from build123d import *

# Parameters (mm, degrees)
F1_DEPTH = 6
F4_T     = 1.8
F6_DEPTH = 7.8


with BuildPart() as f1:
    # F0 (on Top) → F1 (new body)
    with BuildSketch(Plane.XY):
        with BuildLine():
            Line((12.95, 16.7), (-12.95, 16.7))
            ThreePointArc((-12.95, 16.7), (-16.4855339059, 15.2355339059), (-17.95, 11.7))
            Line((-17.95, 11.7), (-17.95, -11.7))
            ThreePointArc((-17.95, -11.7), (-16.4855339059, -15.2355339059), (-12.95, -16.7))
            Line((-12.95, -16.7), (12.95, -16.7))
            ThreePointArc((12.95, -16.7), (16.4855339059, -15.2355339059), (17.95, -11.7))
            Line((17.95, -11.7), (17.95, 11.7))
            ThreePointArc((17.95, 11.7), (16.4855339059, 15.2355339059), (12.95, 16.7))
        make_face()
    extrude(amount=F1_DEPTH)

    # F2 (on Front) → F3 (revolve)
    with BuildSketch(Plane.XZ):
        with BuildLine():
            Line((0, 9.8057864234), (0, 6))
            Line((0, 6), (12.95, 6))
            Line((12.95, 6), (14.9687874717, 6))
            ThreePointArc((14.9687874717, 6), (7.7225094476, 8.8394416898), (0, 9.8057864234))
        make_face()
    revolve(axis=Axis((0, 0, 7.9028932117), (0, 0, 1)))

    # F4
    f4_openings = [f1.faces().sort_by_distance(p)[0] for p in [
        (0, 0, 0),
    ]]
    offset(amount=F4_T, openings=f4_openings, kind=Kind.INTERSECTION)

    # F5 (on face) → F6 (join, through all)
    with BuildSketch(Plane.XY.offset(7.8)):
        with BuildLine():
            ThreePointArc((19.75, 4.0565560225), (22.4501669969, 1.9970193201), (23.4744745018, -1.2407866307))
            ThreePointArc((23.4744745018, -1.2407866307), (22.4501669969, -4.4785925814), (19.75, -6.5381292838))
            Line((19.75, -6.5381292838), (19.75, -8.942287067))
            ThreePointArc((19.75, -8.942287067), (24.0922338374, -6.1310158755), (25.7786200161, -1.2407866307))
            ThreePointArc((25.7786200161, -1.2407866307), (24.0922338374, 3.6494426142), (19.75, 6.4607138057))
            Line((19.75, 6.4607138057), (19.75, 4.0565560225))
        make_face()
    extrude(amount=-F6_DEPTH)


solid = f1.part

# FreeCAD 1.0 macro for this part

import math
import FreeCAD as App
import Part
import Sketcher
from FreeCAD import Vector


def faces_at(feature, points):
    """Names of the faces that lie closest to the given points."""
    faces = feature.Shape.Faces
    near = lambda p: min(range(len(faces)), key=lambda i: faces[i].distToShape(Part.Vertex(*p))[0])
    return sorted({f"Face{near(p) + 1}" for p in points})

doc = App.newDocument("Part")
body = doc.addObject("PartDesign::Body", "Body")

sketch1 = body.newObject("Sketcher::SketchObject", "Sketch")
sketch1.AttachmentSupport = (doc.getObject("XY_Plane"), [""])
sketch1.MapMode = "FlatFace"
sketch1.addGeometry(Part.LineSegment(Vector(13, 17, 0), Vector(-13, 17, 0)), False)
sketch1.addGeometry(Part.ArcOfCircle(Part.Circle(Vector(-13, 12, 0), Vector(0, 0, 1), 5), math.radians(90), math.radians(180)), False)
sketch1.addGeometry(Part.LineSegment(Vector(-18, 12, 0), Vector(-18, -12, 0)), False)
sketch1.addGeometry(Part.ArcOfCircle(Part.Circle(Vector(-13, -12, 0), Vector(0, 0, 1), 5), math.radians(180), math.radians(270)), False)
sketch1.addGeometry(Part.LineSegment(Vector(-13, -17, 0), Vector(13, -17, 0)), False)
sketch1.addGeometry(Part.ArcOfCircle(Part.Circle(Vector(13, -12, 0), Vector(0, 0, 1), 5), math.radians(-90), math.radians(0)), False)
sketch1.addGeometry(Part.LineSegment(Vector(18, -12, 0), Vector(18, 12, 0)), False)
sketch1.addGeometry(Part.ArcOfCircle(Part.Circle(Vector(13, 12, 0), Vector(0, 0, 1), 5), math.radians(0), math.radians(90)), False)
sketch1.addConstraint(Sketcher.Constraint("Tangent", 0, 2, 1, 1))
sketch1.addConstraint(Sketcher.Constraint("Tangent", 1, 2, 2, 1))
sketch1.addConstraint(Sketcher.Constraint("Tangent", 2, 2, 3, 1))
sketch1.addConstraint(Sketcher.Constraint("Tangent", 3, 2, 4, 1))
sketch1.addConstraint(Sketcher.Constraint("Tangent", 4, 2, 5, 1))
sketch1.addConstraint(Sketcher.Constraint("Tangent", 5, 2, 6, 1))
sketch1.addConstraint(Sketcher.Constraint("Tangent", 6, 2, 7, 1))
sketch1.addConstraint(Sketcher.Constraint("Tangent", 7, 2, 0, 1))
sketch1.addConstraint(Sketcher.Constraint("Horizontal", 0))
sketch1.addConstraint(Sketcher.Constraint("Vertical", 2))
sketch1.addConstraint(Sketcher.Constraint("Horizontal", 4))
sketch1.addConstraint(Sketcher.Constraint("Vertical", 6))
sketch1.addConstraint(Sketcher.Constraint("Equal", 1, 3))
sketch1.addConstraint(Sketcher.Constraint("Equal", 3, 5))
sketch1.addConstraint(Sketcher.Constraint("Equal", 5, 7))
sketch1.addConstraint(Sketcher.Constraint("Symmetric", 1, 3, 5, 3, -1, 1))
sketch1.addConstraint(Sketcher.Constraint("Radius", 1, 5.0))
sketch1.addConstraint(Sketcher.Constraint("DistanceX", 0, 2, 0, 1, 25.9))
sketch1.addConstraint(Sketcher.Constraint("DistanceY", 2, 2, 2, 1, 23.4))
pad1 = body.newObject("PartDesign::Pad", "Pad")
pad1.Profile = sketch1
pad1.Length = 6

sketch2 = body.newObject("Sketcher::SketchObject", "Sketch001")
sketch2.AttachmentSupport = (doc.getObject("XZ_Plane"), [""])
sketch2.MapMode = "FlatFace"
sketch2.addGeometry(Part.LineSegment(Vector(0, 9.8, 0), Vector(0, 6, 0)), False)
sketch2.addGeometry(Part.LineSegment(Vector(0, 6, 0), Vector(15, 6, 0)), False)
sketch2.addGeometry(Part.ArcOfCircle(Part.Circle(Vector(0, -21.5, 0), Vector(0, 0, 1), 31.3), math.radians(61), math.radians(90)), False)
sketch2.addConstraint(Sketcher.Constraint("Coincident", 0, 2, 1, 1))
sketch2.addConstraint(Sketcher.Constraint("Coincident", 1, 2, 2, 1))
sketch2.addConstraint(Sketcher.Constraint("Coincident", 2, 2, 0, 1))
sketch2.addConstraint(Sketcher.Constraint("Vertical", 0))
sketch2.addConstraint(Sketcher.Constraint("Horizontal", 1))
sketch2.addConstraint(Sketcher.Constraint("PointOnObject", 2, 3, -2))
sketch2.addConstraint(Sketcher.Constraint("PointOnObject", 0, 2, -2))
sketch2.addConstraint(Sketcher.Constraint("DistanceY", -1, 1, 0, 2, 6.0))
sketch2.addConstraint(Sketcher.Constraint("Radius", 2, 31.340252))
sketch2.addConstraint(Sketcher.Constraint("DistanceX", 1, 1, 1, 2, 14.968787))
revolution = body.newObject("PartDesign::Revolution", "Revolution")
revolution.Profile = sketch2
revolution.ReferenceAxis = (sketch2, ["V_Axis"])
revolution.Angle = 360
doc.recompute()

thickness = body.newObject("PartDesign::Thickness", "Thickness")
thickness.Base = (revolution, faces_at(revolution, [(0, 0, 0)]))
thickness.Value = 1.8
thickness.Reversed = False
thickness.Join = "Intersection"

sketch3 = body.newObject("Sketcher::SketchObject", "Sketch002")
sketch3.AttachmentSupport = (doc.getObject("XY_Plane"), [""])
sketch3.MapMode = "FlatFace"
sketch3.AttachmentOffset = App.Placement(Vector(0, 0, 7.8), App.Rotation())
sketch3.addGeometry(Part.ArcOfCircle(Part.Circle(Vector(17.8, -1.2, 0), Vector(0, 0, 1), 5.6), math.radians(0), math.radians(70)), False)
sketch3.addGeometry(Part.ArcOfCircle(Part.Circle(Vector(17.8, -1.2, 0), Vector(0, 0, 1), 5.6), math.radians(-70), math.radians(0)), False)
sketch3.addGeometry(Part.LineSegment(Vector(19.8, -6.5, 0), Vector(19.8, -8.9, 0)), False)
sketch3.addGeometry(Part.ArcOfCircle(Part.Circle(Vector(17.8, -1.2, 0), Vector(0, 0, 1), 7.9), math.radians(-76), math.radians(0)), False)
sketch3.addGeometry(Part.ArcOfCircle(Part.Circle(Vector(17.8, -1.2, 0), Vector(0, 0, 1), 7.9), math.radians(0), math.radians(76)), False)
sketch3.addGeometry(Part.LineSegment(Vector(19.8, 6.5, 0), Vector(19.8, 4.1, 0)), False)
sketch3.addConstraint(Sketcher.Constraint("Tangent", 0, 1, 1, 2))
sketch3.addConstraint(Sketcher.Constraint("Coincident", 1, 1, 2, 1))
sketch3.addConstraint(Sketcher.Constraint("Coincident", 2, 2, 3, 1))
sketch3.addConstraint(Sketcher.Constraint("Tangent", 3, 2, 4, 1))
sketch3.addConstraint(Sketcher.Constraint("Coincident", 4, 2, 5, 1))
sketch3.addConstraint(Sketcher.Constraint("Coincident", 5, 2, 0, 2))
sketch3.addConstraint(Sketcher.Constraint("Vertical", 2))
sketch3.addConstraint(Sketcher.Constraint("Vertical", 5))
sketch3.addConstraint(Sketcher.Constraint("Coincident", 3, 3, 0, 3))
sketch3.addConstraint(Sketcher.Constraint("Equal", 0, 1))
sketch3.addConstraint(Sketcher.Constraint("Equal", 3, 4))
sketch3.addConstraint(Sketcher.Constraint("Horizontal", 4, 3, 0, 1))
sketch3.addConstraint(Sketcher.Constraint("Horizontal", 0, 1, 3, 2))
sketch3.addConstraint(Sketcher.Constraint("Vertical", 2, 2, 4, 2))
sketch3.addConstraint(Sketcher.Constraint("DistanceX", -1, 1, 1, 1, 19.75))
sketch3.addConstraint(Sketcher.Constraint("Radius", 0, 5.629459))
sketch3.addConstraint(Sketcher.Constraint("Radius", 3, 7.933604))
sketch3.addConstraint(Sketcher.Constraint("DistanceY", 2, 2, 0, 3, 7.7015))
sketch3.addConstraint(Sketcher.Constraint("DistanceY", 1, 1, -1, 1, 6.538129))
pad2 = body.newObject("PartDesign::Pad", "Pad001")
pad2.Profile = sketch3
pad2.Length = 7.8
pad2.Reversed = True

doc.recompute()
